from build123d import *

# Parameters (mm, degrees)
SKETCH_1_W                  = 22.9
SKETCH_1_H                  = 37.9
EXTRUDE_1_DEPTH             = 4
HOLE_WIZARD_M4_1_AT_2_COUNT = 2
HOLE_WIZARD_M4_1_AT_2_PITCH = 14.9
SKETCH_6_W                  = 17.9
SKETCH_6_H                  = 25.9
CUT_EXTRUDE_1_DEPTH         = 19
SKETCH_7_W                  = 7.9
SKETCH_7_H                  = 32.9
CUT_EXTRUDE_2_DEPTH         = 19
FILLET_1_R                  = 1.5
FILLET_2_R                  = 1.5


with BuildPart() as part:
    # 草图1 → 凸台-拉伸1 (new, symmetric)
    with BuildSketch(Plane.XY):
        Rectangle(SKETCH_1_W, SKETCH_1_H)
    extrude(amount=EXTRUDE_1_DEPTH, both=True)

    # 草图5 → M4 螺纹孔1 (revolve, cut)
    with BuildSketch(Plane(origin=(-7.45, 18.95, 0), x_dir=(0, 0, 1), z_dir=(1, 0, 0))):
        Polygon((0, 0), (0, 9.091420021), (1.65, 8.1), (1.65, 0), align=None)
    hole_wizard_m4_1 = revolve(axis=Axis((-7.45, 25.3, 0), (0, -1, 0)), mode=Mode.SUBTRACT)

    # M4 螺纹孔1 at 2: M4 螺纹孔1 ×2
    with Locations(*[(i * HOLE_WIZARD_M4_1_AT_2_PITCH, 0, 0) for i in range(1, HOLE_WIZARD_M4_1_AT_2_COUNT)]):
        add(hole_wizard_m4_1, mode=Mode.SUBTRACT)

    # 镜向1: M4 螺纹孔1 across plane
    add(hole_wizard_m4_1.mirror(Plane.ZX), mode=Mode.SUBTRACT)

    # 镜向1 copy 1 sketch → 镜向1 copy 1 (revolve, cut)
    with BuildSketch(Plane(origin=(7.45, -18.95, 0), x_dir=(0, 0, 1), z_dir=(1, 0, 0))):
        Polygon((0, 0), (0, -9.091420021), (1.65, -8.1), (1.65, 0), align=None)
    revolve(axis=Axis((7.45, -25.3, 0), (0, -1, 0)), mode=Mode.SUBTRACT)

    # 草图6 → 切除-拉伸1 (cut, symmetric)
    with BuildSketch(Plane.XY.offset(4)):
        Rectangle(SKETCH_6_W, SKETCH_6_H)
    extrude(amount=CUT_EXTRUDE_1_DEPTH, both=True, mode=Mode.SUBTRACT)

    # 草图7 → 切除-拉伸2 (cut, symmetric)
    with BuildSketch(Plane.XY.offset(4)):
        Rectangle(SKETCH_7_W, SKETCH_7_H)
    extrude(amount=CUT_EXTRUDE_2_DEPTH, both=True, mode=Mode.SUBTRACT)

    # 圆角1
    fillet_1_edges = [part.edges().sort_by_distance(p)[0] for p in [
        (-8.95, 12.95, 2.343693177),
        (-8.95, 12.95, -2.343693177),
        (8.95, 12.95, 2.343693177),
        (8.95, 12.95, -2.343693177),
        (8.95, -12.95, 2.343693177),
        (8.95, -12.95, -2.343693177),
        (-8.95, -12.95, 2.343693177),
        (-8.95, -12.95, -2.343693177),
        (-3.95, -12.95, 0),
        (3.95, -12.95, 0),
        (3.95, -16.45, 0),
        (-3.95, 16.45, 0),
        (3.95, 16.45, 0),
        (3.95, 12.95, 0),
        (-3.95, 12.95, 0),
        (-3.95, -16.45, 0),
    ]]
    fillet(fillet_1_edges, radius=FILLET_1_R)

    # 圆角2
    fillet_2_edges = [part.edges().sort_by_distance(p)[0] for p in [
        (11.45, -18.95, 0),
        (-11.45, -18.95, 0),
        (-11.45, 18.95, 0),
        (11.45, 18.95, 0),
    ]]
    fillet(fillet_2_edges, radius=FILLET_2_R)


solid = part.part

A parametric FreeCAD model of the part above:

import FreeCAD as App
import Part
import Sketcher

V = App.Vector
Q = App.Units.Quantity


def edges_at(feature, points):
    """Names of the edges that pass closest to the given points."""
    edges = feature.Shape.Edges
    near = lambda p: min(range(len(edges)), key=lambda i: edges[i].distToShape(Part.Vertex(*p))[0])
    return sorted({f"Edge{near(p) + 1}" for p in points})


def add_polygon(sketch, points):
    """Adds a closed chain of lines whose ends are joined by coincident constraints."""
    first, n = sketch.GeometryCount, len(points)
    for a, b in zip(points, points[1:] + points[:1]):
        sketch.addGeometry(Part.LineSegment(App.Vector(*a, 0), App.Vector(*b, 0)), False)
    for i in range(n):
        sketch.addConstraint(Sketcher.Constraint("Coincident", first + i, 2, first + (i + 1) % n, 1))

doc = App.newDocument("Part")
body = doc.addObject("PartDesign::Body", "Body")

sketch1 = body.newObject("Sketcher::SketchObject", "Sketch")
sketch1.AttachmentSupport = (doc.getObject("XY_Plane"), [""])
sketch1.MapMode = "FlatFace"
add_polygon(sketch1, [(-11, 19), (-11, -19), (11, -19), (11, 19)])
sketch1.addConstraint([
    Sketcher.Constraint("Vertical", 0),
    Sketcher.Constraint("Horizontal", 1),
    Sketcher.Constraint("Vertical", 2),
    Sketcher.Constraint("Horizontal", 3),
    Sketcher.Constraint("Symmetric", 0, 2, 2, 2, -1, 1),
    Sketcher.Constraint("DistanceX", 1, 1, 1, 2, 22.9),
    Sketcher.Constraint("DistanceY", 0, 2, 0, 1, 37.9),
])
pad1 = body.newObject("PartDesign::Pad", "Pad")
pad1.Profile = sketch1
pad1.Length = 8
pad1.Midplane = True

sketch2 = body.newObject("Sketcher::SketchObject", "Sketch001")
sketch2.AttachmentSupport = (doc.getObject("YZ_Plane"), [""])
sketch2.MapMode = "FlatFace"
sketch2.AttachmentOffset = App.Placement(V(0, 0, -7.45), App.Rotation())
add_polygon(sketch2, [(9.9, 0), (18.9, 0), (18.9, 1.6), (10.8, 1.6)])
sketch2.addConstraint([
    Sketcher.Constraint("Horizontal", 0),
    Sketcher.Constraint("Vertical", 1),
    Sketcher.Constraint("Horizontal", 2),
    Sketcher.Constraint("PointOnObject", 0, 2, -1),
    Sketcher.Constraint("Angle", 3, Q("-121 deg")),
    Sketcher.Constraint("DistanceX", 2, 2, 2, 1, 8.1),
    Sketcher.Constraint("DistanceY", 1, 1, 1, 2, 1.65),
    Sketcher.Constraint("DistanceX", -1, 1, 0, 2, 18.95),
])
groove = body.newObject("PartDesign::Groove", "Groove")
groove.Profile = sketch2
groove.ReferenceAxis = (sketch2, ["H_Axis"])
groove.Angle = 360
doc.recompute()

linearpattern = body.newObject("PartDesign::LinearPattern", "LinearPattern")
linearpattern.Originals = [groove]
linearpattern.Direction = (doc.getObject("X_Axis"), [""])
linearpattern.Mode = "offset"
linearpattern.Offset = 14.9
linearpattern.Occurrences = 2
body.Tip = linearpattern
doc.recompute()

mirrored = body.newObject("PartDesign::Mirrored", "Mirrored")
mirrored.Originals = [groove]
mirrored.MirrorPlane = (doc.getObject("XZ_Plane"), [""])
body.Tip = mirrored

sketch3 = body.newObject("Sketcher::SketchObject", "Sketch002")
sketch3.AttachmentSupport = (doc.getObject("YZ_Plane"), [""])
sketch3.MapMode = "FlatFace"
sketch3.AttachmentOffset = App.Placement(V(0, 0, 7.45), App.Rotation())
add_polygon(sketch3, [(-18.9, 0), (-9.9, 0), (-10.8, 1.6), (-18.9, 1.6)])
sketch3.addConstraint([
    Sketcher.Constraint("Horizontal", 0),
    Sketcher.Constraint("Horizontal", 2),
    Sketcher.Constraint("Vertical", 3),
    Sketcher.Constraint("PointOnObject", 0, 2, -1),
    Sketcher.Constraint("Angle", 1, Q("121 deg")),
    Sketcher.Constraint("DistanceX", 2, 2, 2, 1, 8.1),
    Sketcher.Constraint("DistanceY", 3, 2, 3, 1, 1.65),
    Sketcher.Constraint("DistanceX", 1, 2, -1, 1, 10.85),
])
groove2 = body.newObject("PartDesign::Groove", "Groove001")
groove2.Profile = sketch3
groove2.ReferenceAxis = (sketch3, ["H_Axis"])
groove2.Angle = 360

sketch4 = body.newObject("Sketcher::SketchObject", "Sketch003")
sketch4.AttachmentSupport = (doc.getObject("XY_Plane"), [""])
sketch4.MapMode = "FlatFace"
sketch4.AttachmentOffset = App.Placement(V(0, 0, 4), App.Rotation())
add_polygon(sketch4, [(-9, 13), (-9, -13), (9, -13), (9, 13)])
sketch4.addConstraint([
    Sketcher.Constraint("Vertical", 0),
    Sketcher.Constraint("Horizontal", 1),
    Sketcher.Constraint("Vertical", 2),
    Sketcher.Constraint("Horizontal", 3),
    Sketcher.Constraint("Symmetric", 0, 2, 2, 2, -1, 1),
    Sketcher.Constraint("DistanceX", 1, 1, 1, 2, 17.9),
    Sketcher.Constraint("DistanceY", 0, 2, 0, 1, 25.9),
])
pocket1 = body.newObject("PartDesign::Pocket", "Pocket")
pocket1.Profile = sketch4
pocket1.Length = 38
pocket1.Midplane = True

sketch5 = body.newObject("Sketcher::SketchObject", "Sketch004")
sketch5.AttachmentSupport = (doc.getObject("XY_Plane"), [""])
sketch5.MapMode = "FlatFace"
sketch5.AttachmentOffset = App.Placement(V(0, 0, 4), App.Rotation())
add_polygon(sketch5, [(-4, 16), (-4, -16), (4, -16), (4, 16)])
sketch5.addConstraint([
    Sketcher.Constraint("Vertical", 0),
    Sketcher.Constraint("Horizontal", 1),
    Sketcher.Constraint("Vertical", 2),
    Sketcher.Constraint("Horizontal", 3),
    Sketcher.Constraint("Symmetric", 0, 2, 2, 2, -1, 1),
    Sketcher.Constraint("DistanceX", 1, 1, 1, 2, 7.9),
    Sketcher.Constraint("DistanceY", 0, 2, 0, 1, 32.9),
])
pocket2 = body.newObject("PartDesign::Pocket", "Pocket001")
pocket2.Profile = sketch5
pocket2.Length = 38
pocket2.Midplane = True
doc.recompute()

fillet = body.newObject("PartDesign::Fillet", "Fillet")
fillet.Base = (pocket2, edges_at(pocket2, [
    (-8.95, 12.95, 2.344),
    (-8.95, 12.95, -2.344),
    (8.95, 12.95, 2.344),
    (8.95, 12.95, -2.344),
    (8.95, -12.95, 2.344),
    (8.95, -12.95, -2.344),
    (-8.95, -12.95, 2.344),
    (-8.95, -12.95, -2.344),
    (-3.95, -12.95, 0),
    (3.95, -12.95, 0),
    (3.95, -16.45, 0),
    (-3.95, 16.45, 0),
    (3.95, 16.45, 0),
    (3.95, 12.95, 0),
    (-3.95, 12.95, 0),
    (-3.95, -16.45, 0),
]))
fillet.Radius = 1.5
doc.recompute()

fillet2 = body.newObject("PartDesign::Fillet", "Fillet001")
fillet2.Base = (fillet, edges_at(fillet, [
    (11.45, -18.95, 0),
    (-11.45, -18.95, 0),
    (-11.45, 18.95, 0),
    (11.45, 18.95, 0),
]))
fillet2.Radius = 1.5

doc.recompute()
